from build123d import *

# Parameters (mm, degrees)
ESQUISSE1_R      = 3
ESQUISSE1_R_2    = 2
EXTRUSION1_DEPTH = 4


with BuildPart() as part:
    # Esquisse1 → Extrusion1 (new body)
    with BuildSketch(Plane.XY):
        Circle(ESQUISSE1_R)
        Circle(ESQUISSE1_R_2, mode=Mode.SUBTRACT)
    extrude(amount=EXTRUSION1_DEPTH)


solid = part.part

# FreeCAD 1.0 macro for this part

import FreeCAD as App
import Part
import Sketcher
from FreeCAD import Vector

doc = App.newDocument("Part")
body = doc.addObject("PartDesign::Body", "Body")

# Sketch on XY plane
sketch1 = doc.addObject("Sketcher::SketchObject", "Sketch")
body.addObject(sketch1)
sketch1.AttachmentSupport = (doc.XY_Plane, [""])
sketch1.MapMode = "FlatFace"
sketch1.addGeometry([
    Part.Circle(Vector(0, 0, 0), Vector(0, 0, 1), 3),
    Part.Circle(Vector(0, 0, 0), Vector(0, 0, 1), 2),
], False)
sketch1.addConstraint([
    Sketcher.Constraint("Coincident", 0, 3, -1, 1),
    Sketcher.Constraint("Coincident", 1, 3, -1, 1),
    Sketcher.Constraint("Diameter", 0, 6.0),
    Sketcher.Constraint("Diameter", 1, 4.0),
])
pad1 = doc.addObject("PartDesign::Pad", "Pad")
body.addObject(pad1)
pad1.Profile = sketch1
pad1.Length = 4

doc.recompute()
